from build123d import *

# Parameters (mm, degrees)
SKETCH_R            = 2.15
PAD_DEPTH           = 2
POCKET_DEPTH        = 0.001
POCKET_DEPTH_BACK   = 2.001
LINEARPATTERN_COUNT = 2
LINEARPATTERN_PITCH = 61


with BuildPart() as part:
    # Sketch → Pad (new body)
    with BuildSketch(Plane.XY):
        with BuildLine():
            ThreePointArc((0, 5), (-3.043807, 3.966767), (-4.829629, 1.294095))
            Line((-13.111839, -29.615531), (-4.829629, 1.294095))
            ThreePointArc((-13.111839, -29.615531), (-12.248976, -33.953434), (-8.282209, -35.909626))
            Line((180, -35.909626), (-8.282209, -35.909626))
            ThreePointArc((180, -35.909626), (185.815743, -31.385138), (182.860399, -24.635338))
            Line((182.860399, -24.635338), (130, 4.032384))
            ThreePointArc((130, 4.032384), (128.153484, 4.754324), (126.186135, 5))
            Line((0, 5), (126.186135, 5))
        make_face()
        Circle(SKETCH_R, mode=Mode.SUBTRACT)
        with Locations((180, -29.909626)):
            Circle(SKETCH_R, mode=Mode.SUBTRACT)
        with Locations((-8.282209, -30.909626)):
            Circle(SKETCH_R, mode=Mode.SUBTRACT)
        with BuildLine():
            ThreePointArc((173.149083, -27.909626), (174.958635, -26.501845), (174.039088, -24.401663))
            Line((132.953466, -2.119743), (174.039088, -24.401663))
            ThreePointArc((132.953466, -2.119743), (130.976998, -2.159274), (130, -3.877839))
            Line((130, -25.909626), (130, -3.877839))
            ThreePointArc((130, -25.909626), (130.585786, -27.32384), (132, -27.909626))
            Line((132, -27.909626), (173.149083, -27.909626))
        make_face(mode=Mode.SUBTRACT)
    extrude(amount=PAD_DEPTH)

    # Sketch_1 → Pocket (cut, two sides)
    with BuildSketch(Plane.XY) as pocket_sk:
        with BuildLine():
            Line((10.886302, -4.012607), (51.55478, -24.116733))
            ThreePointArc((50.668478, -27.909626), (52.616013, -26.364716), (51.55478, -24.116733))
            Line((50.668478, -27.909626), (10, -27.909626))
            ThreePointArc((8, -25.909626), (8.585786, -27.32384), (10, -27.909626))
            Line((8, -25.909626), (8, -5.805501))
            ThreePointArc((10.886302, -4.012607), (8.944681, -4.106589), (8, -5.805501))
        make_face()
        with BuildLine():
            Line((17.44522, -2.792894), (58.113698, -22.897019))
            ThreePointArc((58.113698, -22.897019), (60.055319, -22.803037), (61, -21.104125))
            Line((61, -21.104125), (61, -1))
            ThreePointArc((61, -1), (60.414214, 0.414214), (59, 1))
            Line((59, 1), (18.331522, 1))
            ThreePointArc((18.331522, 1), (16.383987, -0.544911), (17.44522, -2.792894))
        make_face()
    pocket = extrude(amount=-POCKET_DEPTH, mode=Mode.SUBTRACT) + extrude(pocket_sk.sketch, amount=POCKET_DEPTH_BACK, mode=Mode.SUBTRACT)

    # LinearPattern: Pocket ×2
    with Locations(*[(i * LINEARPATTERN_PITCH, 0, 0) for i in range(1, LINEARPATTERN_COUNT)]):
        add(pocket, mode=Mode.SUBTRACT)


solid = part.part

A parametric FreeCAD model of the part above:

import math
import FreeCAD as App
import Part
import Sketcher
from FreeCAD import Vector
Q = App.Units.Quantity

doc = App.newDocument("Part")
body = doc.addObject("PartDesign::Body", "Body")

# Sketch on XY plane
sketch1 = body.newObject("Sketcher::SketchObject", "Sketch")
sketch1.AttachmentSupport = (doc.getObject("XY_Plane"), [""])
sketch1.MapMode = "FlatFace"
sketch1.addGeometry(Part.ArcOfCircle(Part.Circle(Vector(0, 0, 0), Vector(0, 0, 1), 5), math.radians(90), math.radians(165)), False)
sketch1.addGeometry(Part.LineSegment(Vector(-4.8, 1.3, 0), Vector(-13.1, -29.6, 0)), False)
sketch1.addGeometry(Part.ArcOfCircle(Part.Circle(Vector(-8.3, -30.9, 0), Vector(0, 0, 1), 5), math.radians(165), math.radians(270)), False)
sketch1.addGeometry(Part.LineSegment(Vector(-8.3, -35.9, 0), Vector(180, -35.9, 0)), False)
sketch1.addGeometry(Part.ArcOfCircle(Part.Circle(Vector(180, -29.9, 0), Vector(0, 0, 1), 6), math.radians(-90), math.radians(62)), False)
sketch1.addGeometry(Part.LineSegment(Vector(182.9, -24.6, 0), Vector(130, 4, 0)), False)
sketch1.addGeometry(Part.ArcOfCircle(Part.Circle(Vector(126.2, -3, 0), Vector(0, 0, 1), 8), math.radians(62), math.radians(90)), False)
sketch1.addGeometry(Part.LineSegment(Vector(126.2, 5, 0), Vector(0, 5, 0)), False)
sketch1.addGeometry(Part.Circle(Vector(-8.3, -30.9, 0), Vector(0, 0, 1), 2.1), False)
sketch1.addGeometry(Part.Circle(Vector(180, -29.9, 0), Vector(0, 0, 1), 2.1), False)
sketch1.addGeometry(Part.Circle(Vector(0, 0, 0), Vector(0, 0, 1), 2.1), False)
sketch1.addGeometry(Part.ArcOfCircle(Part.Circle(Vector(173.1, -26, 0), Vector(0, 0, 1), 1.9), math.radians(-90), math.radians(62)), False)
sketch1.addGeometry(Part.LineSegment(Vector(173.1, -27.9, 0), Vector(132, -27.9, 0)), False)
sketch1.addGeometry(Part.ArcOfCircle(Part.Circle(Vector(132, -25.9, 0), Vector(0, 0, 1), 2), math.radians(180), math.radians(270)), False)
sketch1.addGeometry(Part.LineSegment(Vector(130, -25.9, 0), Vector(130, -3.9, 0)), False)
sketch1.addGeometry(Part.ArcOfCircle(Part.Circle(Vector(132, -3.9, 0), Vector(0, 0, 1), 2), math.radians(62), math.radians(180)), False)
sketch1.addGeometry(Part.LineSegment(Vector(133, -2.1, 0), Vector(174, -24.4, 0)), False)
sketch1.addConstraint(Sketcher.Constraint("Tangent", 0, 2, 1, 1))
sketch1.addConstraint(Sketcher.Constraint("Tangent", 1, 2, 2, 1))
sketch1.addConstraint(Sketcher.Constraint("Tangent", 2, 2, 3, 1))
sketch1.addConstraint(Sketcher.Constraint("Tangent", 3, 2, 4, 1))
sketch1.addConstraint(Sketcher.Constraint("Tangent", 4, 2, 5, 1))
sketch1.addConstraint(Sketcher.Constraint("Tangent", 5, 2, 6, 1))
sketch1.addConstraint(Sketcher.Constraint("Tangent", 6, 2, 7, 1))
sketch1.addConstraint(Sketcher.Constraint("Tangent", 7, 2, 0, 1))
sketch1.addConstraint(Sketcher.Constraint("Tangent", 11, 1, 12, 1))
sketch1.addConstraint(Sketcher.Constraint("Tangent", 12, 2, 13, 2))
sketch1.addConstraint(Sketcher.Constraint("Tangent", 13, 1, 14, 1))
sketch1.addConstraint(Sketcher.Constraint("Tangent", 14, 2, 15, 2))
sketch1.addConstraint(Sketcher.Constraint("Tangent", 15, 1, 16, 1))
sketch1.addConstraint(Sketcher.Constraint("Tangent", 16, 2, 11, 2))
sketch1.addConstraint(Sketcher.Constraint("Horizontal", 3))
sketch1.addConstraint(Sketcher.Constraint("Horizontal", 7))
sketch1.addConstraint(Sketcher.Constraint("Horizontal", 12))
sketch1.addConstraint(Sketcher.Constraint("Vertical", 14))
sketch1.addConstraint(Sketcher.Constraint("Coincident", 0, 3, -1, 1))
sketch1.addConstraint(Sketcher.Constraint("Coincident", 10, 3, -1, 1))
sketch1.addConstraint(Sketcher.Constraint("Coincident", 8, 3, 2, 3))
sketch1.addConstraint(Sketcher.Constraint("Coincident", 9, 3, 4, 3))
sketch1.addConstraint(Sketcher.Constraint("Equal", 0, 2))
sketch1.addConstraint(Sketcher.Constraint("Equal", 8, 9))
sketch1.addConstraint(Sketcher.Constraint("Equal", 9, 10))
sketch1.addConstraint(Sketcher.Constraint("Equal", 13, 15))
sketch1.addConstraint(Sketcher.Constraint("Parallel", 5, 16))
sketch1.addConstraint(Sketcher.Constraint("Vertical", 5, 2, 13, 1))
sketch1.addConstraint(Sketcher.Constraint("Radius", 0, 4.999999))
sketch1.addConstraint(Sketcher.Constraint("Radius", 4, 6.0))
sketch1.addConstraint(Sketcher.Constraint("Radius", 13, 1.999999))
sketch1.addConstraint(Sketcher.Constraint("Diameter", 8, 4.3))
sketch1.addConstraint(Sketcher.Constraint("Angle", 1, Q("-105.000001 deg")))
sketch1.addConstraint(Sketcher.Constraint("Distance", 1, 32.0))
sketch1.addConstraint(Sketcher.Constraint("DistanceX", -1, 1, 4, 3, 180.0))
sketch1.addConstraint(Sketcher.Constraint("DistanceX", -1, 1, 13, 3, 131.999999))
sketch1.addConstraint(Sketcher.Constraint("DistanceY", 9, 3, 13, 3, 3.999999))
sketch1.addConstraint(Sketcher.Constraint("Radius", 6, 7.999985))
sketch1.addConstraint(Sketcher.Constraint("Radius", 11, 1.866883))
sketch1.addConstraint(Sketcher.Constraint("DistanceX", 12, 2, 12, 1, 41.149083))
pad1 = body.newObject("PartDesign::Pad", "Pad")
pad1.Profile = sketch1
pad1.Length = 2

# Sketch on XY plane
sketch2 = body.newObject("Sketcher::SketchObject", "Sketch001")
sketch2.AttachmentSupport = (doc.getObject("XY_Plane"), [""])
sketch2.MapMode = "FlatFace"
sketch2.addGeometry(Part.LineSegment(Vector(51.55478, -24.116733, 0), Vector(10.886302, -4.012607, 0)), False)
sketch2.addGeometry(Part.ArcOfCircle(Part.Circle(Vector(10, -5.805501, 0), Vector(0, 0, 1), 2), math.radians(63.694899), math.radians(180.000002)), False)
sketch2.addGeometry(Part.LineSegment(Vector(8, -5.805501, 0), Vector(8, -25.909626, 0)), False)
sketch2.addGeometry(Part.ArcOfCircle(Part.Circle(Vector(9.999999, -25.909627, 0), Vector(0, 0, 1), 1.999999), math.radians(179.999957), math.radians(270.000043)), False)
sketch2.addGeometry(Part.LineSegment(Vector(10, -27.909626, 0), Vector(50.668478, -27.909626, 0)), False)
sketch2.addGeometry(Part.ArcOfCircle(Part.Circle(Vector(50.668478, -25.909627, 0), Vector(0, 0, 1), 1.999999), math.radians(-90.000008), math.radians(63.694901)), False)
sketch2.addGeometry(Part.LineSegment(Vector(17.44522, -2.792894, 0), Vector(58.113698, -22.897019, 0)), False)
sketch2.addGeometry(Part.ArcOfCircle(Part.Circle(Vector(59, -21.104125, 0), Vector(0, 0, 1), 2), math.radians(-116.305101), math.radians(0.000002)), False)
sketch2.addGeometry(Part.LineSegment(Vector(61, -21.104125, 0), Vector(61, -1, 0)), False)
sketch2.addGeometry(Part.ArcOfCircle(Part.Circle(Vector(59.000001, -0.999999, 0), Vector(0, 0, 1), 1.999999), math.radians(-0.000043), math.radians(90.000043)), False)
sketch2.addGeometry(Part.LineSegment(Vector(59, 1, 0), Vector(18.331522, 1, 0)), False)
sketch2.addGeometry(Part.ArcOfCircle(Part.Circle(Vector(18.331522, -1, 0), Vector(0, 0, 1), 2), math.radians(90.000013), math.radians(243.694886)), False)
sketch2.addConstraint(Sketcher.Constraint("Tangent", 0, 2, 1, 1))
sketch2.addConstraint(Sketcher.Constraint("Tangent", 1, 2, 2, 1))
sketch2.addConstraint(Sketcher.Constraint("Tangent", 2, 2, 3, 1))
sketch2.addConstraint(Sketcher.Constraint("Tangent", 3, 2, 4, 1))
sketch2.addConstraint(Sketcher.Constraint("Tangent", 4, 2, 5, 1))
sketch2.addConstraint(Sketcher.Constraint("Tangent", 5, 2, 0, 1))
sketch2.addConstraint(Sketcher.Constraint("Tangent", 6, 2, 7, 1))
sketch2.addConstraint(Sketcher.Constraint("Tangent", 7, 2, 8, 1))
sketch2.addConstraint(Sketcher.Constraint("Tangent", 8, 2, 9, 1))
sketch2.addConstraint(Sketcher.Constraint("Tangent", 9, 2, 10, 1))
sketch2.addConstraint(Sketcher.Constraint("Tangent", 10, 2, 11, 1))
sketch2.addConstraint(Sketcher.Constraint("Tangent", 11, 2, 6, 1))
sketch2.addConstraint(Sketcher.Constraint("Vertical", 2))
sketch2.addConstraint(Sketcher.Constraint("Horizontal", 4))
sketch2.addConstraint(Sketcher.Constraint("Vertical", 8))
sketch2.addConstraint(Sketcher.Constraint("Horizontal", 10))
sketch2.addConstraint(Sketcher.Constraint("Equal", 1, 3))
sketch2.addConstraint(Sketcher.Constraint("Equal", 3, 5))
sketch2.addConstraint(Sketcher.Constraint("Equal", 5, 7))
sketch2.addConstraint(Sketcher.Constraint("Equal", 7, 9))
sketch2.addConstraint(Sketcher.Constraint("Equal", 9, 11))
sketch2.addConstraint(Sketcher.Constraint("Parallel", 0, 6))
sketch2.addConstraint(Sketcher.Constraint("Equal", 4, 10))
sketch2.addConstraint(Sketcher.Constraint("Radius", 1, 2.0))
sketch2.addConstraint(Sketcher.Constraint("DistanceX", -1, 1, 1, 3, 10.0))
sketch2.addConstraint(Sketcher.Constraint("DistanceX", -1, 1, 7, 3, 59.0))
sketch2.addConstraint(Sketcher.Constraint("DistanceY", 9, 3, -1, 1, 0.999999))
sketch2.addConstraint(Sketcher.Constraint("DistanceY", 1, 3, -1, 1, 5.805501))
sketch2.addConstraint(Sketcher.Constraint("DistanceX", 0, 2, 9, 3, 48.113699))
sketch2.addConstraint(Sketcher.Constraint("DistanceX", 4, 1, 4, 2, 40.668478))
pocket1 = body.newObject("PartDesign::Pocket", "Pocket")
pocket1.Profile = sketch2
pocket1.Type = "ThroughAll"
pocket1.Midplane = True
doc.recompute()

linearpattern = body.newObject("PartDesign::LinearPattern", "LinearPattern")
linearpattern.Originals = [pocket1]
linearpattern.Direction = (doc.getObject("X_Axis"), [""])
linearpattern.Mode = "offset"
linearpattern.Offset = 61
linearpattern.Occurrences = 2
body.Tip = linearpattern

doc.recompute()
